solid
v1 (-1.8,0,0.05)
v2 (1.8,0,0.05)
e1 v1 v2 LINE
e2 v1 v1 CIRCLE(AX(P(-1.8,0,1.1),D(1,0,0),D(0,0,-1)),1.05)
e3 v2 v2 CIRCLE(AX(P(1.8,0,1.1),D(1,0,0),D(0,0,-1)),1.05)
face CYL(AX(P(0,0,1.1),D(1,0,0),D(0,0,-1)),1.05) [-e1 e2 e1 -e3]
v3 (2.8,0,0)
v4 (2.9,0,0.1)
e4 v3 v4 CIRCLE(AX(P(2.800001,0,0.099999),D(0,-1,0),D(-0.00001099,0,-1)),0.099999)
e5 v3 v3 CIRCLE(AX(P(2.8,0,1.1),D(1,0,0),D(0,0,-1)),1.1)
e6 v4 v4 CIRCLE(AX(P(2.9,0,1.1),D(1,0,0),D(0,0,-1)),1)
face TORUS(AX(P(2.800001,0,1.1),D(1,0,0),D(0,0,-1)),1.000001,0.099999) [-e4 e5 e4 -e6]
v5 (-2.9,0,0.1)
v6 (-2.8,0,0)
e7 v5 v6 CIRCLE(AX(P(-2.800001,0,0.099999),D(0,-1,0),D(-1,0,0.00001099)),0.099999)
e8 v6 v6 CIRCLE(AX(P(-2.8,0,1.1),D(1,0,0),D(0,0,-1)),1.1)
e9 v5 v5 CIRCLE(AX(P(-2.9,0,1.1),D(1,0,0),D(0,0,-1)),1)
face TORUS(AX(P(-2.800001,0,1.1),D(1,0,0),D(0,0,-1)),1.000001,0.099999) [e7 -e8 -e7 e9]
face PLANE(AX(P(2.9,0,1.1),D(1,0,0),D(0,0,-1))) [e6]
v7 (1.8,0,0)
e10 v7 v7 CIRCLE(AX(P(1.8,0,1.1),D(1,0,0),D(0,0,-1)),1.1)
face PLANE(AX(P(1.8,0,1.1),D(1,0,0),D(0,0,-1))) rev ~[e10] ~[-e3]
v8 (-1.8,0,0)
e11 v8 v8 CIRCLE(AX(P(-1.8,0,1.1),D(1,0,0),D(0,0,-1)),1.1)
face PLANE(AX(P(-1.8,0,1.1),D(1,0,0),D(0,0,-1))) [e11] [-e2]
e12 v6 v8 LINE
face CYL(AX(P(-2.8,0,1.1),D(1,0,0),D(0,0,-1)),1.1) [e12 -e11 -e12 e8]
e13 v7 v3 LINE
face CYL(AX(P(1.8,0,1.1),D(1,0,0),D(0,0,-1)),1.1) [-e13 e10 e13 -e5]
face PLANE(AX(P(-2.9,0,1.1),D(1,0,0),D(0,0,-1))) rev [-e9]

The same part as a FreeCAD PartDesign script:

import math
import FreeCAD as App
import Part
import Sketcher
from FreeCAD import Vector
Q = App.Units.Quantity


def add_polygon(sketch, points):
    """Adds a closed chain of lines whose ends are joined by coincident constraints."""
    first, n = sketch.GeometryCount, len(points)
    for a, b in zip(points, points[1:] + points[:1]):
        sketch.addGeometry(Part.LineSegment(App.Vector(*a, 0), App.Vector(*b, 0)), False)
    for i in range(n):
        sketch.addConstraint(Sketcher.Constraint("Coincident", first + i, 2, first + (i + 1) % n, 1))

doc = App.newDocument("Part")
body = doc.addObject("PartDesign::Body", "Body")

# Sketch on XZ plane
sketch1 = doc.addObject("Sketcher::SketchObject", "Sketch")
body.addObject(sketch1)
sketch1.AttachmentSupport = (doc.XZ_Plane, [""])
sketch1.MapMode = "FlatFace"
add_polygon(sketch1, [(-2.4, 1.1), (-2.4, 0.1), (2.4, 0.1), (2.4, 1.1)])  # lines 0-3
sketch1.addGeometry(Part.LineSegment(Vector(-2.4, 1.1, 0), Vector(2.4, 1.1, 0)), True)  # axis
sketch1.addConstraint([
    Sketcher.Constraint("Vertical", 0),
    Sketcher.Constraint("Horizontal", 1),
    Sketcher.Constraint("Vertical", 2),
    Sketcher.Constraint("Horizontal", 3),
    Sketcher.Constraint("Horizontal", 4),
    Sketcher.Constraint("Coincident", 4, 1, 3, 2),
    Sketcher.Constraint("Vertical", 1, 2, 4, 2),
    Sketcher.Constraint("DistanceX", 1, 1, 1, 2, Q("4.7 mm")),
    Sketcher.Constraint("DistanceY", 0, 2, 0, 1, Q("1.05 mm")),
    Sketcher.Constraint("DistanceY", -1, 1, 2, 2, Q("1.1 mm")),
    Sketcher.Constraint("DistanceX", 0, 2, -1, 1, Q("2.35 mm")),
])
revolution = doc.addObject("PartDesign::Revolution", "Revolution")
body.addObject(revolution)
revolution.Profile = sketch1
revolution.ReferenceAxis = (sketch1, ["Axis0"])
revolution.Angle = 360
body2 = doc.addObject("PartDesign::Body", "Body001")

# Sketch on XZ plane
sketch2 = doc.addObject("Sketcher::SketchObject", "Sketch001")
body2.addObject(sketch2)
sketch2.AttachmentSupport = (doc.getObject("XZ_Plane001"), [""])
sketch2.MapMode = "FlatFace"
sketch2.addGeometry([
    Part.LineSegment(Vector(-2.8, 0, 0), Vector(-1.8, 0, 0)),  # 0
    Part.LineSegment(Vector(-1.8, 0, 0), Vector(-1.8, 1, 0)),  # 1
    Part.LineSegment(Vector(-1.8, 1, 0), Vector(1.8, 1, 0)),  # 2
    Part.LineSegment(Vector(1.8, 1, 0), Vector(1.8, 0, 0)),  # 3
    Part.LineSegment(Vector(1.8, 0, 0), Vector(2.8, 0, 0)),  # 4
    Part.ArcOfCircle(Part.Circle(Vector(2.8, 0.1, 0), Vector(0, 0, 1), 0.1), math.radians(-90), math.radians(0)),  # 5
    Part.LineSegment(Vector(2.9, 0.1, 0), Vector(2.9, 1.1, 0)),  # 6
    Part.LineSegment(Vector(2.9, 1.1, 0), Vector(-2.9, 1.1, 0)),  # 7
    Part.LineSegment(Vector(-2.9, 1.1, 0), Vector(-2.9, 0.1, 0)),  # 8
    Part.ArcOfCircle(Part.Circle(Vector(-2.8, 0.1, 0), Vector(0, 0, 1), 0.1), math.radians(180), math.radians(270)),  # 9
], False)
sketch2.addGeometry(Part.LineSegment(Vector(-2.9, 1.1, 0), Vector(2.9, 1.1, 0)), True)  # axis
sketch2.addConstraint([
    Sketcher.Constraint("Coincident", 0, 2, 1, 1),
    Sketcher.Constraint("Coincident", 1, 2, 2, 1),
    Sketcher.Constraint("Coincident", 2, 2, 3, 1),
    Sketcher.Constraint("Coincident", 3, 2, 4, 1),
    Sketcher.Constraint("Coincident", 4, 2, 5, 1),
    Sketcher.Constraint("Coincident", 5, 2, 6, 1),
    Sketcher.Constraint("Coincident", 6, 2, 7, 1),
    Sketcher.Constraint("Coincident", 7, 2, 8, 1),
    Sketcher.Constraint("Coincident", 8, 2, 9, 1),
    Sketcher.Constraint("Coincident", 9, 2, 0, 1),
    Sketcher.Constraint("Horizontal", 0),
    Sketcher.Constraint("Vertical", 1),
    Sketcher.Constraint("Horizontal", 2),
    Sketcher.Constraint("Vertical", 3),
    Sketcher.Constraint("Horizontal", 4),
    Sketcher.Constraint("Vertical", 6),
    Sketcher.Constraint("Horizontal", 7),
    Sketcher.Constraint("Vertical", 8),
    Sketcher.Constraint("Horizontal", 10),
    Sketcher.Constraint("Coincident", 10, 1, 7, 2),
    Sketcher.Constraint("Equal", 5, 9),
    Sketcher.Constraint("Symmetric", 0, 2, 3, 2, -1, 1),
    Sketcher.Constraint("Symmetric", 5, 3, 9, 3, -2),
    Sketcher.Constraint("Horizontal", 9, 3, 5, 2),
    Sketcher.Constraint("Horizontal", 5, 2, 8, 2),
    Sketcher.Constraint("Vertical", 5, 3, 4, 2),
    Sketcher.Constraint("Vertical", 5, 2, 10, 2),
    Sketcher.Constraint("Equal", 0, 4),
    Sketcher.Constraint("Equal", 4, 1),
    Sketcher.Constraint("Equal", 3, 6),
    Sketcher.Constraint("Radius", 5, Q("0.099999 mm")),
    Sketcher.Constraint("DistanceX", 0, 1, 0, 2, Q("1 mm")),
    Sketcher.Constraint("DistanceX", 2, 1, 2, 2, Q("3.6 mm")),
])
revolution2 = doc.addObject("PartDesign::Revolution", "Revolution001")
body2.addObject(revolution2)
revolution2.Profile = sketch2
revolution2.ReferenceAxis = (sketch2, ["Axis0"])
revolution2.Angle = 360
doc.recompute()

boolean = doc.addObject("PartDesign::Boolean", "Boolean")
body2.addObject(boolean)
boolean.Type = "Fuse"
boolean.addObjects([body])

doc.recompute()
